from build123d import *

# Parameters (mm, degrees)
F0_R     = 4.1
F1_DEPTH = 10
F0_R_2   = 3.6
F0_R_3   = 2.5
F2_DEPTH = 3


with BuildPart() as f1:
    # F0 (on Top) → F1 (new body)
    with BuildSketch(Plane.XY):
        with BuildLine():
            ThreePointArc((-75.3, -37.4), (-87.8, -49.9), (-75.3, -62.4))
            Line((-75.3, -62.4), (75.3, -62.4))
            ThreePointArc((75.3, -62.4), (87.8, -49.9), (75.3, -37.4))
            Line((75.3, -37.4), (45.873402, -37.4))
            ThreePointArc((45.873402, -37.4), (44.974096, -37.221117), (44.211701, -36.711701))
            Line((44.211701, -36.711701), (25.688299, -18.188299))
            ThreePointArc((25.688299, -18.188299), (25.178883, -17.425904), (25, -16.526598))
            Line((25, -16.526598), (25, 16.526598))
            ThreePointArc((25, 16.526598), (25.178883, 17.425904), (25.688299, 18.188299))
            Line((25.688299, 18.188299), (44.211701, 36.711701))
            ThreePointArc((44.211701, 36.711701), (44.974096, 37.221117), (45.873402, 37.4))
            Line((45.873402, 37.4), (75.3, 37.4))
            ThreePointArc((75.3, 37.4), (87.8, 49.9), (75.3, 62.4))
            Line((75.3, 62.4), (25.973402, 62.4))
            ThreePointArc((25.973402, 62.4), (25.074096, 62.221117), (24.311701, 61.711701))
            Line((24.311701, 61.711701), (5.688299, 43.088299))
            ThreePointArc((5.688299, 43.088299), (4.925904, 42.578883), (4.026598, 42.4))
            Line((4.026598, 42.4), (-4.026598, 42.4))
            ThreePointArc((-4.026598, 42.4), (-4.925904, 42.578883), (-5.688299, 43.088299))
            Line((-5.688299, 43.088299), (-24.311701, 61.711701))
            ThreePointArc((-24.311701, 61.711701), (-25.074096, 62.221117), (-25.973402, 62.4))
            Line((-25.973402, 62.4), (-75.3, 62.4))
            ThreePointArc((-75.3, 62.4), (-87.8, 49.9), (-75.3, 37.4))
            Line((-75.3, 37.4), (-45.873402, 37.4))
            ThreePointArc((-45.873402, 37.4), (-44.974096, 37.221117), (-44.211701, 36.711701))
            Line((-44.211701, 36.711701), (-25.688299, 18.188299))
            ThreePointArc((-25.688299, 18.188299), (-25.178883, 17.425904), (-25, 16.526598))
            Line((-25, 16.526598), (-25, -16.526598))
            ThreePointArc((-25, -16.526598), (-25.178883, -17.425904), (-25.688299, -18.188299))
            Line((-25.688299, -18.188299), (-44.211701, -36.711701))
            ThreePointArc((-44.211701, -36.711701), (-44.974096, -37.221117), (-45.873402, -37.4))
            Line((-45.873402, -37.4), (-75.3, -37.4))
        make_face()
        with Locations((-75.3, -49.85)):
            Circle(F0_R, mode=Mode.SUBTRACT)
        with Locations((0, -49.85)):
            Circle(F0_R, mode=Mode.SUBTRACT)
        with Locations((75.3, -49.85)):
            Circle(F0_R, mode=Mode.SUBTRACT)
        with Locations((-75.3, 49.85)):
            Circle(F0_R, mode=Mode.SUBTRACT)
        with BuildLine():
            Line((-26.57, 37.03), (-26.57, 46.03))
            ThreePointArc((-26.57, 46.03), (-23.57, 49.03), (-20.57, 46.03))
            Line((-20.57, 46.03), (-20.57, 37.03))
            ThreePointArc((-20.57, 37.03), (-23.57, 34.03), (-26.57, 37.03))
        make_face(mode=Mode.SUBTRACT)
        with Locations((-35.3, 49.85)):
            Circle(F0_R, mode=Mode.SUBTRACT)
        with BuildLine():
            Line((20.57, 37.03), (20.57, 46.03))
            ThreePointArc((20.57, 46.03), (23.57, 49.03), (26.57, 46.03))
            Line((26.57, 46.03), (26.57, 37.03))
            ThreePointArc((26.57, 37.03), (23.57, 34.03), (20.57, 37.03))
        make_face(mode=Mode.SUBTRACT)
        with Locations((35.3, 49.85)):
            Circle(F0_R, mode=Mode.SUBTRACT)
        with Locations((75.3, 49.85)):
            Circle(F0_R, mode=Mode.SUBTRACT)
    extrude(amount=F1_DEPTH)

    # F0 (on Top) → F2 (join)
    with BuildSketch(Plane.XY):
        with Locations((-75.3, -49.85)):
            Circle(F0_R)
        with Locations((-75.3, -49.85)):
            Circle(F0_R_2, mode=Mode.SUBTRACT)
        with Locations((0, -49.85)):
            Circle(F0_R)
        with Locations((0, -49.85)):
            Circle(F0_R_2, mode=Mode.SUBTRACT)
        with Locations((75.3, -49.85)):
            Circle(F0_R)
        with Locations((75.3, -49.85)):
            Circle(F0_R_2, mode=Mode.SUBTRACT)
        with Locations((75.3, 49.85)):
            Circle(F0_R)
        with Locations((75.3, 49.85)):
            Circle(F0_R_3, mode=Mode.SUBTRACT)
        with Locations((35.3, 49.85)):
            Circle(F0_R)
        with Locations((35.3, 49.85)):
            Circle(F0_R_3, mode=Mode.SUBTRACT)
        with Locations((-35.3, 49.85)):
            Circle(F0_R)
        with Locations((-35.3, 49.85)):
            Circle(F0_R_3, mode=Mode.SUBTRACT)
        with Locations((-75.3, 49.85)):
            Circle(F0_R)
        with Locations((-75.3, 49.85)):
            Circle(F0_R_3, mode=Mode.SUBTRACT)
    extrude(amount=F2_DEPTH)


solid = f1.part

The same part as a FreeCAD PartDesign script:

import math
import FreeCAD as App
import Part
import Sketcher
Q = App.Units.Quantity

doc = App.newDocument("Part")
body = doc.addObject("PartDesign::Body", "Body")

# Sketch on XY plane
sketch1 = doc.addObject("Sketcher::SketchObject", "Sketch")
body.addObject(sketch1)
sketch1.AttachmentSupport = (doc.XY_Plane, [""])
sketch1.MapMode = "FlatFace"
sketch1.addGeometry(Part.ArcOfCircle(Part.Circle(App.Vector(-75.3, -49.9, 0), App.Vector(0, 0, 1), 12.5), math.radians(90), math.radians(270)), False)
sketch1.addGeometry(Part.LineSegment(App.Vector(-75.3, -62.4, 0), App.Vector(75.3, -62.4, 0)), False)
sketch1.addGeometry(Part.ArcOfCircle(Part.Circle(App.Vector(75.3, -49.9, 0), App.Vector(0, 0, 1), 12.5), math.radians(-90), math.radians(90)), False)
sketch1.addGeometry(Part.LineSegment(App.Vector(75.3, -37.4, 0), App.Vector(45.9, -37.4, 0)), False)
sketch1.addGeometry(Part.ArcOfCircle(Part.Circle(App.Vector(45.9, -35.1, 0), App.Vector(0, 0, 1), 2.3), math.radians(-135), math.radians(-90)), False)
sketch1.addGeometry(Part.LineSegment(App.Vector(44.2, -36.7, 0), App.Vector(25.7, -18.2, 0)), False)
sketch1.addGeometry(Part.ArcOfCircle(Part.Circle(App.Vector(27.3, -16.5, 0), App.Vector(0, 0, 1), 2.3), math.radians(180), math.radians(225)), False)
sketch1.addGeometry(Part.LineSegment(App.Vector(25, -16.5, 0), App.Vector(25, 16.5, 0)), False)
sketch1.addGeometry(Part.ArcOfCircle(Part.Circle(App.Vector(27.3, 16.5, 0), App.Vector(0, 0, 1), 2.3), math.radians(135), math.radians(180)), False)
sketch1.addGeometry(Part.LineSegment(App.Vector(25.7, 18.2, 0), App.Vector(44.2, 36.7, 0)), False)
sketch1.addGeometry(Part.ArcOfCircle(Part.Circle(App.Vector(45.9, 35.1, 0), App.Vector(0, 0, 1), 2.3), math.radians(90), math.radians(135)), False)
sketch1.addGeometry(Part.LineSegment(App.Vector(45.9, 37.4, 0), App.Vector(75.3, 37.4, 0)), False)
sketch1.addGeometry(Part.ArcOfCircle(Part.Circle(App.Vector(75.3, 49.9, 0), App.Vector(0, 0, 1), 12.5), math.radians(-90), math.radians(90)), False)
sketch1.addGeometry(Part.LineSegment(App.Vector(75.3, 62.4, 0), App.Vector(26, 62.4, 0)), False)
sketch1.addGeometry(Part.ArcOfCircle(Part.Circle(App.Vector(26, 60.1, 0), App.Vector(0, 0, 1), 2.3), math.radians(90), math.radians(135)), False)
sketch1.addGeometry(Part.LineSegment(App.Vector(24.3, 61.7, 0), App.Vector(5.7, 43.1, 0)), False)
sketch1.addGeometry(Part.ArcOfCircle(Part.Circle(App.Vector(4, 44.7, 0), App.Vector(0, 0, 1), 2.3), math.radians(-90), math.radians(-45)), False)
sketch1.addGeometry(Part.LineSegment(App.Vector(4, 42.4, 0), App.Vector(-4, 42.4, 0)), False)
sketch1.addGeometry(Part.ArcOfCircle(Part.Circle(App.Vector(-4, 44.7, 0), App.Vector(0, 0, 1), 2.3), math.radians(-135), math.radians(-90)), False)
sketch1.addGeometry(Part.LineSegment(App.Vector(-5.7, 43.1, 0), App.Vector(-24.3, 61.7, 0)), False)
sketch1.addGeometry(Part.ArcOfCircle(Part.Circle(App.Vector(-26, 60.1, 0), App.Vector(0, 0, 1), 2.3), math.radians(45), math.radians(90)), False)
sketch1.addGeometry(Part.LineSegment(App.Vector(-26, 62.4, 0), App.Vector(-75.3, 62.4, 0)), False)
sketch1.addGeometry(Part.ArcOfCircle(Part.Circle(App.Vector(-75.3, 49.9, 0), App.Vector(0, 0, 1), 12.5), math.radians(90), math.radians(270)), False)
sketch1.addGeometry(Part.LineSegment(App.Vector(-75.3, 37.4, 0), App.Vector(-45.9, 37.4, 0)), False)
sketch1.addGeometry(Part.ArcOfCircle(Part.Circle(App.Vector(-45.9, 35.1, 0), App.Vector(0, 0, 1), 2.3), math.radians(45), math.radians(90)), False)
sketch1.addGeometry(Part.LineSegment(App.Vector(-44.2, 36.7, 0), App.Vector(-25.7, 18.2, 0)), False)
sketch1.addGeometry(Part.ArcOfCircle(Part.Circle(App.Vector(-27.3, 16.5, 0), App.Vector(0, 0, 1), 2.3), math.radians(0), math.radians(45)), False)
sketch1.addGeometry(Part.LineSegment(App.Vector(-25, 16.5, 0), App.Vector(-25, -16.5, 0)), False)
sketch1.addGeometry(Part.ArcOfCircle(Part.Circle(App.Vector(-27.3, -16.5, 0), App.Vector(0, 0, 1), 2.3), math.radians(-45), math.radians(0)), False)
sketch1.addGeometry(Part.LineSegment(App.Vector(-25.7, -18.2, 0), App.Vector(-44.2, -36.7, 0)), False)
sketch1.addGeometry(Part.ArcOfCircle(Part.Circle(App.Vector(-45.9, -35.1, 0), App.Vector(0, 0, 1), 2.3), math.radians(-90), math.radians(-45)), False)
sketch1.addGeometry(Part.LineSegment(App.Vector(-45.9, -37.4, 0), App.Vector(-75.3, -37.4, 0)), False)
sketch1.addGeometry(Part.Circle(App.Vector(-75.3, -49.9, 0), App.Vector(0, 0, 1), 4.1), False)
sketch1.addGeometry(Part.Circle(App.Vector(0, -49.9, 0), App.Vector(0, 0, 1), 4.1), False)
sketch1.addGeometry(Part.Circle(App.Vector(75.3, -49.9, 0), App.Vector(0, 0, 1), 4.1), False)
sketch1.addGeometry(Part.Circle(App.Vector(-75.3, 49.9, 0), App.Vector(0, 0, 1), 4.1), False)
sketch1.addGeometry(Part.ArcOfCircle(Part.Circle(App.Vector(-23.6, 37, 0), App.Vector(0, 0, 1), 3), math.radians(180), math.radians(360)), False)
sketch1.addGeometry(Part.LineSegment(App.Vector(-26.6, 37, 0), App.Vector(-26.6, 46, 0)), False)
sketch1.addGeometry(Part.ArcOfCircle(Part.Circle(App.Vector(-23.6, 46, 0), App.Vector(0, 0, 1), 3), math.radians(0), math.radians(180)), False)
sketch1.addGeometry(Part.LineSegment(App.Vector(-20.6, 46, 0), App.Vector(-20.6, 37, 0)), False)
sketch1.addGeometry(Part.Circle(App.Vector(-35.3, 49.9, 0), App.Vector(0, 0, 1), 4.1), False)
sketch1.addGeometry(Part.ArcOfCircle(Part.Circle(App.Vector(23.6, 37, 0), App.Vector(0, 0, 1), 3), math.radians(180), math.radians(360)), False)
sketch1.addGeometry(Part.LineSegment(App.Vector(20.6, 37, 0), App.Vector(20.6, 46, 0)), False)
sketch1.addGeometry(Part.ArcOfCircle(Part.Circle(App.Vector(23.6, 46, 0), App.Vector(0, 0, 1), 3), math.radians(0), math.radians(180)), False)
sketch1.addGeometry(Part.LineSegment(App.Vector(26.6, 46, 0), App.Vector(26.6, 37, 0)), False)
sketch1.addGeometry(Part.Circle(App.Vector(35.3, 49.9, 0), App.Vector(0, 0, 1), 4.1), False)
sketch1.addGeometry(Part.Circle(App.Vector(75.3, 49.9, 0), App.Vector(0, 0, 1), 4.1), False)
sketch1.addConstraint(Sketcher.Constraint("Tangent", 0, 2, 1, 1))
sketch1.addConstraint(Sketcher.Constraint("Tangent", 1, 2, 2, 1))
sketch1.addConstraint(Sketcher.Constraint("Tangent", 2, 2, 3, 1))
sketch1.addConstraint(Sketcher.Constraint("Tangent", 3, 2, 4, 2))
sketch1.addConstraint(Sketcher.Constraint("Tangent", 4, 1, 5, 1))
sketch1.addConstraint(Sketcher.Constraint("Tangent", 5, 2, 6, 2))
sketch1.addConstraint(Sketcher.Constraint("Tangent", 6, 1, 7, 1))
sketch1.addConstraint(Sketcher.Constraint("Tangent", 7, 2, 8, 2))
sketch1.addConstraint(Sketcher.Constraint("Tangent", 8, 1, 9, 1))
sketch1.addConstraint(Sketcher.Constraint("Tangent", 9, 2, 10, 2))
sketch1.addConstraint(Sketcher.Constraint("Tangent", 10, 1, 11, 1))
sketch1.addConstraint(Sketcher.Constraint("Tangent", 11, 2, 12, 1))
sketch1.addConstraint(Sketcher.Constraint("Tangent", 12, 2, 13, 1))
sketch1.addConstraint(Sketcher.Constraint("Tangent", 13, 2, 14, 1))
sketch1.addConstraint(Sketcher.Constraint("Tangent", 14, 2, 15, 1))
sketch1.addConstraint(Sketcher.Constraint("Tangent", 15, 2, 16, 2))
sketch1.addConstraint(Sketcher.Constraint("Tangent", 16, 1, 17, 1))
sketch1.addConstraint(Sketcher.Constraint("Tangent", 17, 2, 18, 2))
sketch1.addConstraint(Sketcher.Constraint("Tangent", 18, 1, 19, 1))
sketch1.addConstraint(Sketcher.Constraint("Tangent", 19, 2, 20, 1))
sketch1.addConstraint(Sketcher.Constraint("Tangent", 20, 2, 21, 1))
sketch1.addConstraint(Sketcher.Constraint("Tangent", 21, 2, 22, 1))
sketch1.addConstraint(Sketcher.Constraint("Tangent", 22, 2, 23, 1))
sketch1.addConstraint(Sketcher.Constraint("Tangent", 23, 2, 24, 2))
sketch1.addConstraint(Sketcher.Constraint("Tangent", 24, 1, 25, 1))
sketch1.addConstraint(Sketcher.Constraint("Tangent", 25, 2, 26, 2))
sketch1.addConstraint(Sketcher.Constraint("Tangent", 26, 1, 27, 1))
sketch1.addConstraint(Sketcher.Constraint("Tangent", 27, 2, 28, 2))
sketch1.addConstraint(Sketcher.Constraint("Tangent", 28, 1, 29, 1))
sketch1.addConstraint(Sketcher.Constraint("Tangent", 29, 2, 30, 2))
sketch1.addConstraint(Sketcher.Constraint("Tangent", 30, 1, 31, 1))
sketch1.addConstraint(Sketcher.Constraint("Tangent", 31, 2, 0, 1))
sketch1.addConstraint(Sketcher.Constraint("Tangent", 36, 1, 37, 1))
sketch1.addConstraint(Sketcher.Constraint("Tangent", 37, 2, 38, 2))
sketch1.addConstraint(Sketcher.Constraint("Tangent", 38, 1, 39, 1))
sketch1.addConstraint(Sketcher.Constraint("Tangent", 39, 2, 36, 2))
sketch1.addConstraint(Sketcher.Constraint("Tangent", 41, 1, 42, 1))
sketch1.addConstraint(Sketcher.Constraint("Tangent", 42, 2, 43, 2))
sketch1.addConstraint(Sketcher.Constraint("Tangent", 43, 1, 44, 1))
sketch1.addConstraint(Sketcher.Constraint("Tangent", 44, 2, 41, 2))
sketch1.addConstraint(Sketcher.Constraint("Horizontal", 1))
sketch1.addConstraint(Sketcher.Constraint("Horizontal", 3))
sketch1.addConstraint(Sketcher.Constraint("Vertical", 7))
sketch1.addConstraint(Sketcher.Constraint("Horizontal", 11))
sketch1.addConstraint(Sketcher.Constraint("Horizontal", 13))
sketch1.addConstraint(Sketcher.Constraint("Horizontal", 17))
sketch1.addConstraint(Sketcher.Constraint("Horizontal", 21))
sketch1.addConstraint(Sketcher.Constraint("Horizontal", 23))
sketch1.addConstraint(Sketcher.Constraint("Vertical", 27))
sketch1.addConstraint(Sketcher.Constraint("Horizontal", 31))
sketch1.addConstraint(Sketcher.Constraint("Vertical", 37))
sketch1.addConstraint(Sketcher.Constraint("Vertical", 39))
sketch1.addConstraint(Sketcher.Constraint("Vertical", 42))
sketch1.addConstraint(Sketcher.Constraint("Vertical", 44))
sketch1.addConstraint(Sketcher.Constraint("Equal", 0, 2))
sketch1.addConstraint(Sketcher.Constraint("Equal", 4, 6))
sketch1.addConstraint(Sketcher.Constraint("Equal", 6, 8))
sketch1.addConstraint(Sketcher.Constraint("Equal", 8, 10))
sketch1.addConstraint(Sketcher.Constraint("Equal", 2, 12))
sketch1.addConstraint(Sketcher.Constraint("Equal", 10, 14))
sketch1.addConstraint(Sketcher.Constraint("Equal", 14, 16))
sketch1.addConstraint(Sketcher.Constraint("Equal", 16, 18))
sketch1.addConstraint(Sketcher.Constraint("Equal", 18, 20))
sketch1.addConstraint(Sketcher.Constraint("Equal", 12, 22))
sketch1.addConstraint(Sketcher.Constraint("Equal", 20, 24))
sketch1.addConstraint(Sketcher.Constraint("Equal", 24, 26))
sketch1.addConstraint(Sketcher.Constraint("Equal", 26, 28))
sketch1.addConstraint(Sketcher.Constraint("Equal", 28, 30))
sketch1.addConstraint(Sketcher.Constraint("Equal", 32, 33))
sketch1.addConstraint(Sketcher.Constraint("Equal", 33, 34))
sketch1.addConstraint(Sketcher.Constraint("Equal", 34, 35))
sketch1.addConstraint(Sketcher.Constraint("Equal", 35, 40))
sketch1.addConstraint(Sketcher.Constraint("Equal", 38, 41))
sketch1.addConstraint(Sketcher.Constraint("Equal", 40, 45))
sketch1.addConstraint(Sketcher.Constraint("Equal", 45, 46))
sketch1.addConstraint(Sketcher.Constraint("Symmetric", 0, 3, 12, 3, -1, 1))
sketch1.addConstraint(Sketcher.Constraint("Symmetric", 2, 3, 22, 3, -1, 1))
sketch1.addConstraint(Sketcher.Constraint("Symmetric", 6, 3, 26, 3, -1, 1))
sketch1.addConstraint(Sketcher.Constraint("Symmetric", 34, 3, 35, 3, -1, 1))
sketch1.addConstraint(Sketcher.Constraint("Symmetric", 32, 3, 46, 3, -1, 1))
sketch1.addConstraint(Sketcher.Constraint("Symmetric", 8, 1, 28, 1, -1, 1))
sketch1.addConstraint(Sketcher.Constraint("Symmetric", 32, 3, 34, 3, -2))
sketch1.addConstraint(Sketcher.Constraint("Symmetric", 36, 3, 41, 3, -2))
sketch1.addConstraint(Sketcher.Constraint("Symmetric", 40, 3, 45, 3, -2))
sketch1.addConstraint(Sketcher.Constraint("Symmetric", 15, 2, 18, 1, -2))
sketch1.addConstraint(Sketcher.Constraint("Symmetric", 9, 2, 24, 1, -2))
sketch1.addConstraint(Sketcher.Constraint("PointOnObject", 33, 3, -2))
sketch1.addConstraint(Sketcher.Constraint("Perpendicular", 5, 9))
sketch1.addConstraint(Sketcher.Constraint("Parallel", 9, 15))
sketch1.addConstraint(Sketcher.Constraint("Perpendicular", 15, 19))
sketch1.addConstraint(Sketcher.Constraint("Horizontal", 32, 3, 33, 3))
sketch1.addConstraint(Sketcher.Constraint("Horizontal", 35, 3, 40, 3))
sketch1.addConstraint(Sketcher.Constraint("Horizontal", 38, 3, 43, 3))
sketch1.addConstraint(Sketcher.Constraint("Vertical", 2, 3, 12, 3))
sketch1.addConstraint(Sketcher.Constraint("Vertical", 22, 3, 32, 3))
sketch1.addConstraint(Sketcher.Constraint("Radius", 36, Q("3 mm")))
sketch1.addConstraint(Sketcher.Constraint("Diameter", 32, Q("8.2 mm")))
sketch1.addConstraint(Sketcher.Constraint("Radius", 0, Q("12.5 mm")))
sketch1.addConstraint(Sketcher.Constraint("DistanceY", 37, 1, 37, 2, Q("9 mm")))
sketch1.addConstraint(Sketcher.Constraint("Radius", 4, Q("2.35 mm")))
sketch1.addConstraint(Sketcher.Constraint("DistanceX", 1, 1, 1, 2, Q("150.6 mm")))
sketch1.addConstraint(Sketcher.Constraint("DistanceX", -1, 1, 6, 1, Q("25 mm")))
sketch1.addConstraint(Sketcher.Constraint("DistanceY", 0, 3, -1, 1, Q("49.9 mm")))
sketch1.addConstraint(Sketcher.Constraint("DistanceX", 40, 3, -1, 1, Q("35.3 mm")))
sketch1.addConstraint(Sketcher.Constraint("DistanceY", -1, 1, 16, 1, Q("42.4 mm")))
sketch1.addConstraint(Sketcher.Constraint("DistanceY", 32, 3, -1, 1, Q("49.85 mm")))
sketch1.addConstraint(Sketcher.Constraint("DistanceX", 36, 3, -1, 1, Q("23.57 mm")))
sketch1.addConstraint(Sketcher.Constraint("DistanceY", -1, 1, 36, 3, Q("37.03 mm")))
sketch1.addConstraint(Sketcher.Constraint("DistanceX", -1, 1, 4, 3, Q("45.873402 mm")))
sketch1.addConstraint(Sketcher.Constraint("DistanceX", -1, 1, 14, 3, Q("25.973402 mm")))
pad1 = doc.addObject("PartDesign::Pad", "Pad")
body.addObject(pad1)
pad1.Profile = sketch1
pad1.Length = 10

# Sketch on XY plane
sketch2 = doc.addObject("Sketcher::SketchObject", "Sketch001")
body.addObject(sketch2)
sketch2.AttachmentSupport = (doc.XY_Plane, [""])
sketch2.MapMode = "FlatFace"
sketch2.addGeometry(Part.Circle(App.Vector(-75.3, -49.9, 0), App.Vector(0, 0, 1), 4.1), False)
sketch2.addGeometry(Part.Circle(App.Vector(-75.3, -49.9, 0), App.Vector(0, 0, 1), 3.6), False)
sketch2.addGeometry(Part.Circle(App.Vector(0, -49.9, 0), App.Vector(0, 0, 1), 4.1), False)
sketch2.addGeometry(Part.Circle(App.Vector(0, -49.9, 0), App.Vector(0, 0, 1), 3.6), False)
sketch2.addGeometry(Part.Circle(App.Vector(75.3, -49.9, 0), App.Vector(0, 0, 1), 4.1), False)
sketch2.addGeometry(Part.Circle(App.Vector(75.3, -49.9, 0), App.Vector(0, 0, 1), 3.6), False)
sketch2.addGeometry(Part.Circle(App.Vector(75.3, 49.9, 0), App.Vector(0, 0, 1), 4.1), False)
sketch2.addGeometry(Part.Circle(App.Vector(75.3, 49.9, 0), App.Vector(0, 0, 1), 2.5), False)
sketch2.addGeometry(Part.Circle(App.Vector(35.3, 49.9, 0), App.Vector(0, 0, 1), 4.1), False)
sketch2.addGeometry(Part.Circle(App.Vector(35.3, 49.9, 0), App.Vector(0, 0, 1), 2.5), False)
sketch2.addGeometry(Part.Circle(App.Vector(-35.3, 49.9, 0), App.Vector(0, 0, 1), 4.1), False)
sketch2.addGeometry(Part.Circle(App.Vector(-35.3, 49.9, 0), App.Vector(0, 0, 1), 2.5), False)
sketch2.addGeometry(Part.Circle(App.Vector(-75.3, 49.9, 0), App.Vector(0, 0, 1), 4.1), False)
sketch2.addGeometry(Part.Circle(App.Vector(-75.3, 49.9, 0), App.Vector(0, 0, 1), 2.5), False)
sketch2.addConstraint(Sketcher.Constraint("Coincident", 1, 3, 0, 3))
sketch2.addConstraint(Sketcher.Constraint("Coincident", 3, 3, 2, 3))
sketch2.addConstraint(Sketcher.Constraint("Coincident", 5, 3, 4, 3))
sketch2.addConstraint(Sketcher.Constraint("Coincident", 7, 3, 6, 3))
sketch2.addConstraint(Sketcher.Constraint("Coincident", 9, 3, 8, 3))
sketch2.addConstraint(Sketcher.Constraint("Coincident", 11, 3, 10, 3))
sketch2.addConstraint(Sketcher.Constraint("Coincident", 13, 3, 12, 3))
sketch2.addConstraint(Sketcher.Constraint("Equal", 0, 2))
sketch2.addConstraint(Sketcher.Constraint("Equal", 1, 3))
sketch2.addConstraint(Sketcher.Constraint("Equal", 2, 4))
sketch2.addConstraint(Sketcher.Constraint("Equal", 3, 5))
sketch2.addConstraint(Sketcher.Constraint("Equal", 4, 6))
sketch2.addConstraint(Sketcher.Constraint("Equal", 6, 8))
sketch2.addConstraint(Sketcher.Constraint("Equal", 7, 9))
sketch2.addConstraint(Sketcher.Constraint("Equal", 8, 10))
sketch2.addConstraint(Sketcher.Constraint("Equal", 9, 11))
sketch2.addConstraint(Sketcher.Constraint("Equal", 10, 12))
sketch2.addConstraint(Sketcher.Constraint("Equal", 11, 13))
sketch2.addConstraint(Sketcher.Constraint("Symmetric", 0, 3, 6, 3, -1, 1))
sketch2.addConstraint(Sketcher.Constraint("Symmetric", 4, 3, 12, 3, -1, 1))
sketch2.addConstraint(Sketcher.Constraint("Symmetric", 0, 3, 4, 3, -2))
sketch2.addConstraint(Sketcher.Constraint("Symmetric", 8, 3, 10, 3, -2))
sketch2.addConstraint(Sketcher.Constraint("PointOnObject", 2, 3, -2))
sketch2.addConstraint(Sketcher.Constraint("Horizontal", 1, 3, 2, 3))
sketch2.addConstraint(Sketcher.Constraint("Horizontal", 7, 3, 8, 3))
sketch2.addConstraint(Sketcher.Constraint("Diameter", 7, Q("5 mm")))
sketch2.addConstraint(Sketcher.Constraint("Diameter", 0, Q("8.2 mm")))
sketch2.addConstraint(Sketcher.Constraint("Diameter", 1, Q("7.2 mm")))
sketch2.addConstraint(Sketcher.Constraint("DistanceX", 8, 3, 6, 3, Q("40 mm")))
sketch2.addConstraint(Sketcher.Constraint("DistanceX", 0, 3, -1, 1, Q("75.3 mm")))
sketch2.addConstraint(Sketcher.Constraint("DistanceY", 4, 3, 6, 3, Q("99.7 mm")))
pad2 = doc.addObject("PartDesign::Pad", "Pad001")
body.addObject(pad2)
pad2.Profile = sketch2
pad2.Length = 3

doc.recompute()
